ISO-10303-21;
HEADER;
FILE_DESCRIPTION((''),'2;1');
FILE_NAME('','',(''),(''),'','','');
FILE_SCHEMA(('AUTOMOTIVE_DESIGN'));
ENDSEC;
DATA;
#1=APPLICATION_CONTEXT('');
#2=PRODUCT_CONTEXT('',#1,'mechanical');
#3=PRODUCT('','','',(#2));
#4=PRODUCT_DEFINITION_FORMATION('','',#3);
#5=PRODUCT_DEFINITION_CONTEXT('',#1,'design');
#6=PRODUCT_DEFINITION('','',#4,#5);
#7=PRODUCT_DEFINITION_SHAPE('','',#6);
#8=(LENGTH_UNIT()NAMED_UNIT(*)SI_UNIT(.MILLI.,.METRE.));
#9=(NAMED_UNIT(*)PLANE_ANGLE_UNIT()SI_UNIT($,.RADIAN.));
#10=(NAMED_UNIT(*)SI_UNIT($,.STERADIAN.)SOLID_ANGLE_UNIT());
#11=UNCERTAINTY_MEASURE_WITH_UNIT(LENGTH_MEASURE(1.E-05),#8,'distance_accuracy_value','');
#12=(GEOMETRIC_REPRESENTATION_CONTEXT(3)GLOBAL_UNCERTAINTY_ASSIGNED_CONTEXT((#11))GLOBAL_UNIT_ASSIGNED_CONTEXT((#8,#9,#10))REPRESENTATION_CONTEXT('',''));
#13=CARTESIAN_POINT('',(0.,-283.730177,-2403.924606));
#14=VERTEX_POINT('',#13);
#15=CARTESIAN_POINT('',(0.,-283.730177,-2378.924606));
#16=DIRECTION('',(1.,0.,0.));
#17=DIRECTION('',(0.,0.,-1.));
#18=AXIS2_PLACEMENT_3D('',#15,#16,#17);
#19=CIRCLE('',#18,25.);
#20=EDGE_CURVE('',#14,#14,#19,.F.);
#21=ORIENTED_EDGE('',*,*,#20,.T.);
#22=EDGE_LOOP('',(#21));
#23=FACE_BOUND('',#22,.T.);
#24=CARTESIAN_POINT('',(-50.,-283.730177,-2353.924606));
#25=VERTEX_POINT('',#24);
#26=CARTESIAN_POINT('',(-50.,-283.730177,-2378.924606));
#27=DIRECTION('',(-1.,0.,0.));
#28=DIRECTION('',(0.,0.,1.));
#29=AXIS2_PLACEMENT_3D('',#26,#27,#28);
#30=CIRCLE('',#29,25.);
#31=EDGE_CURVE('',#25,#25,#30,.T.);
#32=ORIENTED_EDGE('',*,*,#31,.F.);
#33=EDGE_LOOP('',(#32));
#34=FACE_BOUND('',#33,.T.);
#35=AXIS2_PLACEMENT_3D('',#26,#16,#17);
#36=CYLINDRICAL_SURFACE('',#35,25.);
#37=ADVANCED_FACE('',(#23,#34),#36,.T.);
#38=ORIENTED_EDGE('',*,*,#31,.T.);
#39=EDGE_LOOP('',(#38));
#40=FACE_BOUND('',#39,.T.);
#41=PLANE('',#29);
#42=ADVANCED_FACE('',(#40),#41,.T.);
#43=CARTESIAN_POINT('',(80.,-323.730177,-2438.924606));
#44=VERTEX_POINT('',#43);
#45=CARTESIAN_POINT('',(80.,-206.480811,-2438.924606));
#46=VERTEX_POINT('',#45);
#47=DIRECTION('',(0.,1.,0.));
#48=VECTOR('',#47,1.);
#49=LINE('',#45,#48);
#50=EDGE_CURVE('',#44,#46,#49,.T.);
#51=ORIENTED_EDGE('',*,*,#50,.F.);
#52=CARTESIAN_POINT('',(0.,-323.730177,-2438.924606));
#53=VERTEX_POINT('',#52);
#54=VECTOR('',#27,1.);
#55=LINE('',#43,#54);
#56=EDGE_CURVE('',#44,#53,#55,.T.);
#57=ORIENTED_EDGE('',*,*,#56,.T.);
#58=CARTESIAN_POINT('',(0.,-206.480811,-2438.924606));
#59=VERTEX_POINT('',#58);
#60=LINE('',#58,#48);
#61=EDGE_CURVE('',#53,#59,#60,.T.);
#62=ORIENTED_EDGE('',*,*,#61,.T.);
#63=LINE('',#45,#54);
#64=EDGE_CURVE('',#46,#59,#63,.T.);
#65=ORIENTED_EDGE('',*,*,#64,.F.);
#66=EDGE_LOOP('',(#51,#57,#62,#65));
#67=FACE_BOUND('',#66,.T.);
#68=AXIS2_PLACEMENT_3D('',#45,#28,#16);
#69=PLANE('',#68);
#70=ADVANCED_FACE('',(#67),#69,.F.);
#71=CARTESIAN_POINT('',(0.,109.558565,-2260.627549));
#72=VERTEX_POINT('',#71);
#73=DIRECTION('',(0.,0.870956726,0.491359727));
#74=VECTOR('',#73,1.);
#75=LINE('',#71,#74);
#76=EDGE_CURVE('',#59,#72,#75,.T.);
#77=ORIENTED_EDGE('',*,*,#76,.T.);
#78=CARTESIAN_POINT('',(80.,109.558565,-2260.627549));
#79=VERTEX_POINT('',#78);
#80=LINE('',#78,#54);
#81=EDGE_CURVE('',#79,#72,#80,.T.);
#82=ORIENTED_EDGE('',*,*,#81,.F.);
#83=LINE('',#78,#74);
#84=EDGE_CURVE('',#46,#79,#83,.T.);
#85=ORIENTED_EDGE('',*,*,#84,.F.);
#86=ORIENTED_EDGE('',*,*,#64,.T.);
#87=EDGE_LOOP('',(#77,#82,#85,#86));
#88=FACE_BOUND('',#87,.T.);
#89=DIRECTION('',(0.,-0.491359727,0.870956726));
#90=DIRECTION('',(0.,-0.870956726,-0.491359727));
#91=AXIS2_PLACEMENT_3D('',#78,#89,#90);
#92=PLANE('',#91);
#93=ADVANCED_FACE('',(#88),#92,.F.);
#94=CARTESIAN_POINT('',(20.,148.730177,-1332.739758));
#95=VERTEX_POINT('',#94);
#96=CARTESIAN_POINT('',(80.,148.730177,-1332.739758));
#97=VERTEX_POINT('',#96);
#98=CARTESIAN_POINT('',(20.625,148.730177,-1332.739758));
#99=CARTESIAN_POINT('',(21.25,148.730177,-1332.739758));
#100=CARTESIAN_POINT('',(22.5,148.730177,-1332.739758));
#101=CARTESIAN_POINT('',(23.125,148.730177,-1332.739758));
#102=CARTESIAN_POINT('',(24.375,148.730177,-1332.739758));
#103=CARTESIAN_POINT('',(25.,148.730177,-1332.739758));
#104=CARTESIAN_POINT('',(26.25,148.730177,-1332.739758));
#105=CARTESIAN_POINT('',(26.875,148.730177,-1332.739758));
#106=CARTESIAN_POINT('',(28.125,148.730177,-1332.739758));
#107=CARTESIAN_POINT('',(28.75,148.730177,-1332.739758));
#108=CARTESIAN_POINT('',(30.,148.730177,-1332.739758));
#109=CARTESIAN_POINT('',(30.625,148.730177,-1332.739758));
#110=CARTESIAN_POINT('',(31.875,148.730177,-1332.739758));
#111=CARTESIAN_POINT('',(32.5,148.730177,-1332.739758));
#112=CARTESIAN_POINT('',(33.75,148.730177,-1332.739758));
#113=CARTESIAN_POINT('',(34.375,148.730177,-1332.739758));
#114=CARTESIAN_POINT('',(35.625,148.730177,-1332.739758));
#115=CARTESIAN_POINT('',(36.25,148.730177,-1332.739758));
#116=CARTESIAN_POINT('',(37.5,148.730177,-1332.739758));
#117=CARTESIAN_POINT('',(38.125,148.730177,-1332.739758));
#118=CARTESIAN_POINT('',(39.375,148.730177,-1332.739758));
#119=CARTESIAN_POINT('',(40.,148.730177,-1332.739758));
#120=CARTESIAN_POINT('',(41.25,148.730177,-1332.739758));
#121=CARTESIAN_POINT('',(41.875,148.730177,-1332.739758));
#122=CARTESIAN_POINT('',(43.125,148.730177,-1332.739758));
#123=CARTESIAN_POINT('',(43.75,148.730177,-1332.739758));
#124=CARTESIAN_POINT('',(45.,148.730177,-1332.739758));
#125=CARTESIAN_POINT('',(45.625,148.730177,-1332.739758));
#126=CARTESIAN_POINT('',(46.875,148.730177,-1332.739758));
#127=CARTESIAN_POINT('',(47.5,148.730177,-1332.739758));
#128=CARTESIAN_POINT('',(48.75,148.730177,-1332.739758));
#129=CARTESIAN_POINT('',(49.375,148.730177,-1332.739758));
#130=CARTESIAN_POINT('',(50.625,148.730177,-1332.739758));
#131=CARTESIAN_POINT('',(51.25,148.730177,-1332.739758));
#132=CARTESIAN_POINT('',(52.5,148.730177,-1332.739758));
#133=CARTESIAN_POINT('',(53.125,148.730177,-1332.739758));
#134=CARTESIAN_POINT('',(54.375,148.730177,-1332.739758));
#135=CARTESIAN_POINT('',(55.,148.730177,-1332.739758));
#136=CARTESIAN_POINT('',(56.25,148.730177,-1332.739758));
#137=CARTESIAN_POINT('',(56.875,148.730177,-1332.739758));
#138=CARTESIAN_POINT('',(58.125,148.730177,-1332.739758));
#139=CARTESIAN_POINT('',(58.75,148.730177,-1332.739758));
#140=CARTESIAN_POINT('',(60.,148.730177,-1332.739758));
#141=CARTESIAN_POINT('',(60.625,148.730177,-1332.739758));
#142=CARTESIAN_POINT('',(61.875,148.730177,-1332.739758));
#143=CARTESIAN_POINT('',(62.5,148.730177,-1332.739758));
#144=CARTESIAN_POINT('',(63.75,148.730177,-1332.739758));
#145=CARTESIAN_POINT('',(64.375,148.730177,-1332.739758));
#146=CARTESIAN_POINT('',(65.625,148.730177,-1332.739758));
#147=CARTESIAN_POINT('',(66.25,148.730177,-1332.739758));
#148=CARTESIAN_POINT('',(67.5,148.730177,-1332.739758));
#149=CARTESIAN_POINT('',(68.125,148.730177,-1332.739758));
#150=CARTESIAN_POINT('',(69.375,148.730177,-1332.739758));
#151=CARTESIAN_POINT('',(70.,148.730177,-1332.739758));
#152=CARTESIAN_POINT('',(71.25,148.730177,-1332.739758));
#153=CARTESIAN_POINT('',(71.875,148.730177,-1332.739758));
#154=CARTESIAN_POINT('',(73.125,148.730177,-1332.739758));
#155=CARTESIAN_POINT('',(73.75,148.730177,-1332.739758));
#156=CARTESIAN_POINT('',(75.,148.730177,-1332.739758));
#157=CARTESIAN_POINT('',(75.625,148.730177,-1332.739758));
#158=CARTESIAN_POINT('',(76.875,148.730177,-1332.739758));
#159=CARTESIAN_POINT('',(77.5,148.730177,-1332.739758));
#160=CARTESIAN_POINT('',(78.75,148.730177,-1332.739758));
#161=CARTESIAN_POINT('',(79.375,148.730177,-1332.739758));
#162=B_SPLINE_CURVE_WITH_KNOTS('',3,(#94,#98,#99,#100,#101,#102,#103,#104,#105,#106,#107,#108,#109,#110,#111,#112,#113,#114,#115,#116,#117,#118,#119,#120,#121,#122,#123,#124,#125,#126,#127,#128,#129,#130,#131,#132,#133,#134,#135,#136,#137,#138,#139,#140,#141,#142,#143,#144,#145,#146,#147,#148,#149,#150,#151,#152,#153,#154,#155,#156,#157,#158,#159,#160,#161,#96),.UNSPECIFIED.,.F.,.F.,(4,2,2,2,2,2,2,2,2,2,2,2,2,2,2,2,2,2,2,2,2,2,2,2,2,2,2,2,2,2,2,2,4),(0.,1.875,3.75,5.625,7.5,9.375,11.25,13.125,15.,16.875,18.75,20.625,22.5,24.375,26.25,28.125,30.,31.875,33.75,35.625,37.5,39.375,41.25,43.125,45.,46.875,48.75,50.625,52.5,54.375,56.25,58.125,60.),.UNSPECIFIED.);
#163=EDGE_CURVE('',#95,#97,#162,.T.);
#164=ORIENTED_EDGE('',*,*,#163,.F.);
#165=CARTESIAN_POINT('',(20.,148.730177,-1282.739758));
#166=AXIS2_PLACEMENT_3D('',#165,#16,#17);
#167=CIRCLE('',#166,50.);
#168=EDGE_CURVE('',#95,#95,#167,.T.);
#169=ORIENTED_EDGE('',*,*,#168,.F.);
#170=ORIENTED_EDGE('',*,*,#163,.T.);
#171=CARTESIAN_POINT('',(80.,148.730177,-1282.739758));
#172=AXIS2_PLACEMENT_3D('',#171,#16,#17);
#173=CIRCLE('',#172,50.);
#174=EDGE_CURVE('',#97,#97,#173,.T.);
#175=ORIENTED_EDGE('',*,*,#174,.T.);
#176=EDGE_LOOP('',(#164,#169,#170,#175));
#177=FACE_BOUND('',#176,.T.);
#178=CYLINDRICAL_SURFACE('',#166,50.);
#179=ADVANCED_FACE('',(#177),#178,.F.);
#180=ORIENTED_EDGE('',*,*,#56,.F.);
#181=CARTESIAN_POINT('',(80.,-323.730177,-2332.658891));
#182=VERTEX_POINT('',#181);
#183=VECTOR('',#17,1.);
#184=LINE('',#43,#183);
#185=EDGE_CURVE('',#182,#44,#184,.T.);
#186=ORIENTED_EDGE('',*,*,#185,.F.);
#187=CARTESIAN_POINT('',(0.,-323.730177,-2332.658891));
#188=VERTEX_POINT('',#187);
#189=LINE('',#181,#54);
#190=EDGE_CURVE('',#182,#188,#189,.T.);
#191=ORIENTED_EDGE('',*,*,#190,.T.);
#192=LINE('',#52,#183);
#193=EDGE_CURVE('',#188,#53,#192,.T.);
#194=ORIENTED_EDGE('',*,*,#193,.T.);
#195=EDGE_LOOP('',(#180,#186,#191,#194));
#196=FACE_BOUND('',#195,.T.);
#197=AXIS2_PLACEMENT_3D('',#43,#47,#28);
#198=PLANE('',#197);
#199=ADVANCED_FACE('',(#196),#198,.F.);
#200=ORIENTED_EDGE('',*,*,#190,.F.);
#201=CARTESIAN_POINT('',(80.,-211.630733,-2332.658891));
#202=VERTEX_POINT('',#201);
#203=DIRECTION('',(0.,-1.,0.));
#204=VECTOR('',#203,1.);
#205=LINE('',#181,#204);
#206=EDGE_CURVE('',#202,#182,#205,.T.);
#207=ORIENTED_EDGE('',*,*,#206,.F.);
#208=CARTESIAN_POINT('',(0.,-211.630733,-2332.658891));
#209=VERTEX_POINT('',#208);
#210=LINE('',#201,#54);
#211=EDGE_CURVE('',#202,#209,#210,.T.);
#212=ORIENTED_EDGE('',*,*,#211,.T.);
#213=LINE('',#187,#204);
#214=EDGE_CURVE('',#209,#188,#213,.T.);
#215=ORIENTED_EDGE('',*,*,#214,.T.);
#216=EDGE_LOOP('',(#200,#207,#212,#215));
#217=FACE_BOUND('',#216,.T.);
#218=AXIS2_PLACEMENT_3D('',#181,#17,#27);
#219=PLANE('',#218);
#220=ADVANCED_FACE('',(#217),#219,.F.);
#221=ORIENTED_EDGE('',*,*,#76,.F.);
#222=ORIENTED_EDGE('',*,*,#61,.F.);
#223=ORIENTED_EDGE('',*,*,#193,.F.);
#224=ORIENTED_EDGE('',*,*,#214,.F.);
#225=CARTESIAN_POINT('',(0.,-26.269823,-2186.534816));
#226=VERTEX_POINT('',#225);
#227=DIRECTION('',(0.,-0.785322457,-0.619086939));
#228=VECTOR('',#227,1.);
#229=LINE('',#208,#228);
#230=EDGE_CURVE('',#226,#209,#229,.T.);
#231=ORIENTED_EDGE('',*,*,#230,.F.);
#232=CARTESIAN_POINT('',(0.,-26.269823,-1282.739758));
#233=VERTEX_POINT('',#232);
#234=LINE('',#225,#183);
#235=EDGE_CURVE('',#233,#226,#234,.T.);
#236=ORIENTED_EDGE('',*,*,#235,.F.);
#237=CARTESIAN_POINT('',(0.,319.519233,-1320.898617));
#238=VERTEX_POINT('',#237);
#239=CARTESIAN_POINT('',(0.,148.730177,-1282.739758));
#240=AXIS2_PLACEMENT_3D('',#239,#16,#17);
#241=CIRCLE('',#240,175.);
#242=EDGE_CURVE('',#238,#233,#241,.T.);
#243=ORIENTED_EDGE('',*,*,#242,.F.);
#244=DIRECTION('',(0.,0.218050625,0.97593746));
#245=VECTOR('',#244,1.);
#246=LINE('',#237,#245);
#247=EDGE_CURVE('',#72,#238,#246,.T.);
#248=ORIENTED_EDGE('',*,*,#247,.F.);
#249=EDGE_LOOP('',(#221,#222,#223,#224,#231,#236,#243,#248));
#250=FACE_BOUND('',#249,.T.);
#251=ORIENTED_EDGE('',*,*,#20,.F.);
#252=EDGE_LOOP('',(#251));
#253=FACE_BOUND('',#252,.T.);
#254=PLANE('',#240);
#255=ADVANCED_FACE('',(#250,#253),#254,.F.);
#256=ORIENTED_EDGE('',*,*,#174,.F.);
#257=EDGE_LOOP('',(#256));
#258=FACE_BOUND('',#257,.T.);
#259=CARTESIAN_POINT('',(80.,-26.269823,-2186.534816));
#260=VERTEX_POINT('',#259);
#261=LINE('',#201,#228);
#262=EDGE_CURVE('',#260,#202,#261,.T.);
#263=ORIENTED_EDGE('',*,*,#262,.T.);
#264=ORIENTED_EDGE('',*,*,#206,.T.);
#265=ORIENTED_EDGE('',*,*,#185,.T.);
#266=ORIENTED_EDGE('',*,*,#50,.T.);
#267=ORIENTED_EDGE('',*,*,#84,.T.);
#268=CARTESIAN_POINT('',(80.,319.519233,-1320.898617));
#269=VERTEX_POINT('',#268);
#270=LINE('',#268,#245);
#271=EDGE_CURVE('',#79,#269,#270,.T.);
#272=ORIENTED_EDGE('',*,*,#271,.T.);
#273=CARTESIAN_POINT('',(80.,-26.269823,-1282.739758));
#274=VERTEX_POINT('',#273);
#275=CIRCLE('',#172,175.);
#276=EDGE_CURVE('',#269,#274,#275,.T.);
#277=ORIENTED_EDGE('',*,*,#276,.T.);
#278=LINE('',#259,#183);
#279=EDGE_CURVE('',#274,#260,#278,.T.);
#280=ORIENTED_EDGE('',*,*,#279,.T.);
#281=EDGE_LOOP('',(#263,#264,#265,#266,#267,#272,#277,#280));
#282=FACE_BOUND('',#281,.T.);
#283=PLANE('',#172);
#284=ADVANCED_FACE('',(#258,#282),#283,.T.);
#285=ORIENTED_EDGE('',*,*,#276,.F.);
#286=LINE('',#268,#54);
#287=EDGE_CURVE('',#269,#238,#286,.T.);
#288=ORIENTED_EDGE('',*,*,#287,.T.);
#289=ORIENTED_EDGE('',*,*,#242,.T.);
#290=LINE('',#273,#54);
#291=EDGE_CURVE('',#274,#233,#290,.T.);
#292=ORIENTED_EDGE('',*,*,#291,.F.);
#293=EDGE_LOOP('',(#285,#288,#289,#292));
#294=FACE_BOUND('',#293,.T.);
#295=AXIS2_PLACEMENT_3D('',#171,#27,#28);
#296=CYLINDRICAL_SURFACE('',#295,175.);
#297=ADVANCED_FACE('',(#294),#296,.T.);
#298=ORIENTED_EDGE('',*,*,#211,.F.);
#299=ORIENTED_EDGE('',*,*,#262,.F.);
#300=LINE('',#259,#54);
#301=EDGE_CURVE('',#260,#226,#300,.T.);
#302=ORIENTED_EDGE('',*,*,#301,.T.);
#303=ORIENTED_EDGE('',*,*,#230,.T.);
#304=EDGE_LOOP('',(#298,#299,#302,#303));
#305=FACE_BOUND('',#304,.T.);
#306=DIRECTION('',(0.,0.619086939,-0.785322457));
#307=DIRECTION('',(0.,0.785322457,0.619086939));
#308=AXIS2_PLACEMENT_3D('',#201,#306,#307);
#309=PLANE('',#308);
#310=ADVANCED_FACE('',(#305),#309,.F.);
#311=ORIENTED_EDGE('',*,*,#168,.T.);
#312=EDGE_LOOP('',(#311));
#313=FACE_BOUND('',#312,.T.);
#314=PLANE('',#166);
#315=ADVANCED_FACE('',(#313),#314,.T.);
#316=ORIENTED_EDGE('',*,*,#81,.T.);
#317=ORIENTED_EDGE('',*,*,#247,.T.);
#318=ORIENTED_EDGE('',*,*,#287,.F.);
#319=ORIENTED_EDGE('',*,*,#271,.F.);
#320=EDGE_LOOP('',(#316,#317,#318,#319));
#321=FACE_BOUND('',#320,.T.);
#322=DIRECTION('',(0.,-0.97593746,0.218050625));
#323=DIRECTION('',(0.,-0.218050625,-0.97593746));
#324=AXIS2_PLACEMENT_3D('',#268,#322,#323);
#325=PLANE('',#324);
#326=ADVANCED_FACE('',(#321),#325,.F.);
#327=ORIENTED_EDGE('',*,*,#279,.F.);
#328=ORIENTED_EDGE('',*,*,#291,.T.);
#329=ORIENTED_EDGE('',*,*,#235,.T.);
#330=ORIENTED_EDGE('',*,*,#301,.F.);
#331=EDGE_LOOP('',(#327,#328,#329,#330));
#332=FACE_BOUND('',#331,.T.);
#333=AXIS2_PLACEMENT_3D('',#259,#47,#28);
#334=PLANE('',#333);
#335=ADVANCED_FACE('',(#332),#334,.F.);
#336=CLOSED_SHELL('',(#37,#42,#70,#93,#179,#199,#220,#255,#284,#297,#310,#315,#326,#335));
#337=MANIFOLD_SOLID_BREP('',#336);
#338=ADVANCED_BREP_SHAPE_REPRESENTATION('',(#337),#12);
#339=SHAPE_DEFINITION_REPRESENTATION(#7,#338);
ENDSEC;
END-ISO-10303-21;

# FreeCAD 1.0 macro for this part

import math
import FreeCAD as App
import Part
import Sketcher

V = App.Vector
Q = App.Units.Quantity

doc = App.newDocument("Part")
body = doc.addObject("PartDesign::Body", "Body")

sketch1 = body.newObject("Sketcher::SketchObject", "Sketch")
sketch1.AttachmentSupport = (doc.getObject("YZ_Plane"), [""])
sketch1.MapMode = "FlatFace"
sketch1.addGeometry([
    Part.LineSegment(V(110, -2261, 0), V(320, -1321, 0)),
    Part.ArcOfCircle(Part.Circle(V(149, -1283, 0), V(0, 0, 1), 175), math.radians(-13), math.radians(180)),
    Part.LineSegment(V(-26, -1283, 0), V(-26, -2187, 0)),
    Part.LineSegment(V(-26, -2187, 0), V(-212, -2333, 0)),
    Part.LineSegment(V(-212, -2333, 0), V(-324, -2333, 0)),
    Part.LineSegment(V(-324, -2333, 0), V(-324, -2439, 0)),
    Part.LineSegment(V(-324, -2439, 0), V(-206, -2439, 0)),
    Part.LineSegment(V(-206, -2439, 0), V(110, -2261, 0)),
], False)
sketch1.addConstraint([
    Sketcher.Constraint("Tangent", 0, 2, 1, 1),
    Sketcher.Constraint("Tangent", 1, 2, 2, 1),
    Sketcher.Constraint("Coincident", 2, 2, 3, 1),
    Sketcher.Constraint("Coincident", 3, 2, 4, 1),
    Sketcher.Constraint("Coincident", 4, 2, 5, 1),
    Sketcher.Constraint("Coincident", 5, 2, 6, 1),
    Sketcher.Constraint("Coincident", 6, 2, 7, 1),
    Sketcher.Constraint("Coincident", 7, 2, 0, 1),
    Sketcher.Constraint("Vertical", 2),
    Sketcher.Constraint("Horizontal", 4),
    Sketcher.Constraint("Vertical", 5),
    Sketcher.Constraint("Horizontal", 6),
    Sketcher.Constraint("Radius", 1, 175.0),
    Sketcher.Constraint("Angle", 7, Q("29.429992 deg")),
    Sketcher.Constraint("DistanceY", 2, 2, 0, 2, 865.636198),
    Sketcher.Constraint("Distance", 0, 962.898721),
    Sketcher.Constraint("DistanceX", 4, 2, 4, 1, 112.099445),
    Sketcher.Constraint("DistanceX", 6, 1, 6, 2, 117.249366),
    Sketcher.Constraint("DistanceY", 2, 2, 2, 1, 903.795057),
    Sketcher.Constraint("DistanceY", 5, 2, 5, 1, 106.265715),
    Sketcher.Constraint("DistanceY", 1, 3, -1, 1, 1282.739758),
    Sketcher.Constraint("DistanceY", 3, 2, -1, 1, 2332.658891),
    Sketcher.Constraint("DistanceX", 6, 2, -1, 1, 206.480811),
])
pad1 = body.newObject("PartDesign::Pad", "Pad")
pad1.Profile = sketch1
pad1.Length = 80

sketch2 = body.newObject("Sketcher::SketchObject", "Sketch001")
sketch2.AttachmentSupport = (doc.getObject("YZ_Plane"), [""])
sketch2.MapMode = "FlatFace"
sketch2.AttachmentOffset = App.Placement(V(0, 0, 80), App.Rotation())
sketch2.addGeometry(Part.Circle(V(149, -1283, 0), V(0, 0, 1), 50), False)
sketch2.addConstraint([
    Sketcher.Constraint("Diameter", 0, 100.0),
    Sketcher.Constraint("DistanceY", 0, 3, -1, 1, 1282.739758),
    Sketcher.Constraint("DistanceX", -1, 1, 0, 3, 148.730177),
])
pocket1 = body.newObject("PartDesign::Pocket", "Pocket")
pocket1.Profile = sketch2
pocket1.Length = 60

sketch3 = body.newObject("Sketcher::SketchObject", "Sketch002")
sketch3.AttachmentSupport = (doc.getObject("YZ_Plane"), [""])
sketch3.MapMode = "FlatFace"
sketch3.addGeometry(Part.Circle(V(-284, -2379, 0), V(0, 0, 1), 25), False)
sketch3.addConstraint([
    Sketcher.Constraint("Diameter", 0, 50.0),
    Sketcher.Constraint("DistanceX", 0, 3, -1, 1, 283.730177),
    Sketcher.Constraint("DistanceY", 0, 3, -1, 1, 2378.924606),
])
pad2 = body.newObject("PartDesign::Pad", "Pad001")
pad2.Profile = sketch3
pad2.Length = 50
pad2.Reversed = True

doc.recompute()
